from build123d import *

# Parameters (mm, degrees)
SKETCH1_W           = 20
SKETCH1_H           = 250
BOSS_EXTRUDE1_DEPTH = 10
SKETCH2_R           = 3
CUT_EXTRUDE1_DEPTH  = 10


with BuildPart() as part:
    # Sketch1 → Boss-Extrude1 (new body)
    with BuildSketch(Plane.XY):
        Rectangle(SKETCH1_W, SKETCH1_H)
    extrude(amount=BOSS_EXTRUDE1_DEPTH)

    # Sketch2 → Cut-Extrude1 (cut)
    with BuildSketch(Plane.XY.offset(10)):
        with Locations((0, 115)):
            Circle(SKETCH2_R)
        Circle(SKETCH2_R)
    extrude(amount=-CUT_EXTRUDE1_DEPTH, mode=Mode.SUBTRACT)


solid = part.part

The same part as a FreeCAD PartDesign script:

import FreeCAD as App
import Part
import Sketcher

V = App.Vector

doc = App.newDocument("Part")
body = doc.addObject("PartDesign::Body", "Body")

sketch1 = body.newObject("Sketcher::SketchObject", "Sketch")
sketch1.AttachmentSupport = (doc.getObject("XY_Plane"), [""])
sketch1.MapMode = "FlatFace"
sketch1.addGeometry(Part.LineSegment(V(-10, 125, 0), V(-10, -125, 0)), False)
sketch1.addGeometry(Part.LineSegment(V(-10, -125, 0), V(10, -125, 0)), False)
sketch1.addGeometry(Part.LineSegment(V(10, -125, 0), V(10, 125, 0)), False)
sketch1.addGeometry(Part.LineSegment(V(10, 125, 0), V(-10, 125, 0)), False)
sketch1.addConstraint(Sketcher.Constraint("Coincident", 0, 2, 1, 1))
sketch1.addConstraint(Sketcher.Constraint("Coincident", 1, 2, 2, 1))
sketch1.addConstraint(Sketcher.Constraint("Coincident", 2, 2, 3, 1))
sketch1.addConstraint(Sketcher.Constraint("Coincident", 3, 2, 0, 1))
sketch1.addConstraint(Sketcher.Constraint("Vertical", 0))
sketch1.addConstraint(Sketcher.Constraint("Horizontal", 1))
sketch1.addConstraint(Sketcher.Constraint("Vertical", 2))
sketch1.addConstraint(Sketcher.Constraint("Horizontal", 3))
sketch1.addConstraint(Sketcher.Constraint("Symmetric", 0, 2, 2, 2, -1, 1))
sketch1.addConstraint(Sketcher.Constraint("DistanceX", 1, 1, 1, 2, 20.0))
sketch1.addConstraint(Sketcher.Constraint("DistanceY", 0, 2, 0, 1, 250.0))
pad1 = body.newObject("PartDesign::Pad", "Pad")
pad1.Profile = sketch1
pad1.Length = 10

sketch2 = body.newObject("Sketcher::SketchObject", "Sketch001")
sketch2.AttachmentSupport = (doc.getObject("XY_Plane"), [""])
sketch2.MapMode = "FlatFace"
sketch2.AttachmentOffset = App.Placement(V(0, 0, 10), App.Rotation())
sketch2.addGeometry(Part.Circle(V(0, 115, 0), V(0, 0, 1), 3), False)
sketch2.addGeometry(Part.Circle(V(0, 0, 0), V(0, 0, 1), 3), False)
sketch2.addConstraint(Sketcher.Constraint("Coincident", 1, 3, -1, 1))
sketch2.addConstraint(Sketcher.Constraint("Equal", 0, 1))
sketch2.addConstraint(Sketcher.Constraint("PointOnObject", 0, 3, -2))
sketch2.addConstraint(Sketcher.Constraint("Diameter", 0, 6.0))
sketch2.addConstraint(Sketcher.Constraint("DistanceY", -1, 1, 0, 3, 115.0))
pocket1 = body.newObject("PartDesign::Pocket", "Pocket")
pocket1.Profile = sketch2
pocket1.Length = 10

doc.recompute()
